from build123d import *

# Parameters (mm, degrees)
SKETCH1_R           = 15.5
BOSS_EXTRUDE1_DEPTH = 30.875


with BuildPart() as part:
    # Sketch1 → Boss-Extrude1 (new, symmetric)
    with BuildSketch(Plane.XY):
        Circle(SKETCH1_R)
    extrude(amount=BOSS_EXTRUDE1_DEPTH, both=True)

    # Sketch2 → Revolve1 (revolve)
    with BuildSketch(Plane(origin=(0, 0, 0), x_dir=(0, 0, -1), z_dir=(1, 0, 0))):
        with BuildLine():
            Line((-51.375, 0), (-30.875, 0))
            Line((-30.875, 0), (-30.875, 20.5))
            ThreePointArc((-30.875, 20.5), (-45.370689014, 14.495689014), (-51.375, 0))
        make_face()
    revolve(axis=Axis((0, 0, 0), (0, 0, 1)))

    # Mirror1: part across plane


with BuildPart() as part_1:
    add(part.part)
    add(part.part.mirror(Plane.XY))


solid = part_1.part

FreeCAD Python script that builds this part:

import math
import FreeCAD as App
import Part
import Sketcher

V = App.Vector
Q = App.Units.Quantity

doc = App.newDocument("Part")
body = doc.addObject("PartDesign::Body", "Body")

sketch1 = body.newObject("Sketcher::SketchObject", "Sketch")
sketch1.AttachmentSupport = (doc.getObject("XY_Plane"), [""])
sketch1.MapMode = "FlatFace"
sketch1.addGeometry(Part.Circle(V(0, 0, 0), V(0, 0, 1), 16), False)
sketch1.addConstraint([
    Sketcher.Constraint("Coincident", 0, 3, -1, 1),
    Sketcher.Constraint("Diameter", 0, Q("31 mm")),
])
pad1 = body.newObject("PartDesign::Pad", "Pad")
pad1.Profile = sketch1
pad1.Length = 61.75
pad1.Midplane = True

sketch2 = body.newObject("Sketcher::SketchObject", "Sketch001")
sketch2.AttachmentSupport = (doc.getObject("YZ_Plane"), [""])
sketch2.MapMode = "FlatFace"
sketch2.addGeometry([
    Part.LineSegment(V(0, 51, 0), V(0, 31, 0)),
    Part.LineSegment(V(0, 31, 0), V(20, 31, 0)),
    Part.ArcOfCircle(Part.Circle(V(0, 31, 0), V(0, 0, 1), 21), math.radians(0), math.radians(90)),
], False)
sketch2.addConstraint([
    Sketcher.Constraint("Coincident", 0, 2, 1, 1),
    Sketcher.Constraint("Coincident", 1, 2, 2, 1),
    Sketcher.Constraint("Coincident", 2, 2, 0, 1),
    Sketcher.Constraint("Vertical", 0),
    Sketcher.Constraint("Horizontal", 1),
    Sketcher.Constraint("Coincident", 0, 2, 2, 3),
    Sketcher.Constraint("PointOnObject", 2, 3, -2),
    Sketcher.Constraint("Radius", 2, Q("20.5 mm")),
    Sketcher.Constraint("DistanceY", -1, 1, 2, 3, Q("30.875 mm")),
])
revolution = body.newObject("PartDesign::Revolution", "Revolution")
revolution.Profile = sketch2
revolution.ReferenceAxis = (sketch2, ["V_Axis"])
revolution.Angle = 360
body2 = doc.addObject("PartDesign::Body", "Body001")
doc.recompute()

body2.BaseFeature = body
doc.recompute()

mirroring = doc.addObject("Part::Mirroring", "Mirroring")
mirroring.Source = body
mirroring.Base = V(0, 0, 0)
mirroring.Normal = V(0, 0, 1)
body3 = doc.addObject("PartDesign::Body", "Body002")
body3.BaseFeature = mirroring
boolean = body2.newObject("PartDesign::Boolean", "Boolean")
boolean.Type = "Fuse"
boolean.addObjects([body3])
doc.recompute()
mirroring.Visibility = False

doc.recompute()
